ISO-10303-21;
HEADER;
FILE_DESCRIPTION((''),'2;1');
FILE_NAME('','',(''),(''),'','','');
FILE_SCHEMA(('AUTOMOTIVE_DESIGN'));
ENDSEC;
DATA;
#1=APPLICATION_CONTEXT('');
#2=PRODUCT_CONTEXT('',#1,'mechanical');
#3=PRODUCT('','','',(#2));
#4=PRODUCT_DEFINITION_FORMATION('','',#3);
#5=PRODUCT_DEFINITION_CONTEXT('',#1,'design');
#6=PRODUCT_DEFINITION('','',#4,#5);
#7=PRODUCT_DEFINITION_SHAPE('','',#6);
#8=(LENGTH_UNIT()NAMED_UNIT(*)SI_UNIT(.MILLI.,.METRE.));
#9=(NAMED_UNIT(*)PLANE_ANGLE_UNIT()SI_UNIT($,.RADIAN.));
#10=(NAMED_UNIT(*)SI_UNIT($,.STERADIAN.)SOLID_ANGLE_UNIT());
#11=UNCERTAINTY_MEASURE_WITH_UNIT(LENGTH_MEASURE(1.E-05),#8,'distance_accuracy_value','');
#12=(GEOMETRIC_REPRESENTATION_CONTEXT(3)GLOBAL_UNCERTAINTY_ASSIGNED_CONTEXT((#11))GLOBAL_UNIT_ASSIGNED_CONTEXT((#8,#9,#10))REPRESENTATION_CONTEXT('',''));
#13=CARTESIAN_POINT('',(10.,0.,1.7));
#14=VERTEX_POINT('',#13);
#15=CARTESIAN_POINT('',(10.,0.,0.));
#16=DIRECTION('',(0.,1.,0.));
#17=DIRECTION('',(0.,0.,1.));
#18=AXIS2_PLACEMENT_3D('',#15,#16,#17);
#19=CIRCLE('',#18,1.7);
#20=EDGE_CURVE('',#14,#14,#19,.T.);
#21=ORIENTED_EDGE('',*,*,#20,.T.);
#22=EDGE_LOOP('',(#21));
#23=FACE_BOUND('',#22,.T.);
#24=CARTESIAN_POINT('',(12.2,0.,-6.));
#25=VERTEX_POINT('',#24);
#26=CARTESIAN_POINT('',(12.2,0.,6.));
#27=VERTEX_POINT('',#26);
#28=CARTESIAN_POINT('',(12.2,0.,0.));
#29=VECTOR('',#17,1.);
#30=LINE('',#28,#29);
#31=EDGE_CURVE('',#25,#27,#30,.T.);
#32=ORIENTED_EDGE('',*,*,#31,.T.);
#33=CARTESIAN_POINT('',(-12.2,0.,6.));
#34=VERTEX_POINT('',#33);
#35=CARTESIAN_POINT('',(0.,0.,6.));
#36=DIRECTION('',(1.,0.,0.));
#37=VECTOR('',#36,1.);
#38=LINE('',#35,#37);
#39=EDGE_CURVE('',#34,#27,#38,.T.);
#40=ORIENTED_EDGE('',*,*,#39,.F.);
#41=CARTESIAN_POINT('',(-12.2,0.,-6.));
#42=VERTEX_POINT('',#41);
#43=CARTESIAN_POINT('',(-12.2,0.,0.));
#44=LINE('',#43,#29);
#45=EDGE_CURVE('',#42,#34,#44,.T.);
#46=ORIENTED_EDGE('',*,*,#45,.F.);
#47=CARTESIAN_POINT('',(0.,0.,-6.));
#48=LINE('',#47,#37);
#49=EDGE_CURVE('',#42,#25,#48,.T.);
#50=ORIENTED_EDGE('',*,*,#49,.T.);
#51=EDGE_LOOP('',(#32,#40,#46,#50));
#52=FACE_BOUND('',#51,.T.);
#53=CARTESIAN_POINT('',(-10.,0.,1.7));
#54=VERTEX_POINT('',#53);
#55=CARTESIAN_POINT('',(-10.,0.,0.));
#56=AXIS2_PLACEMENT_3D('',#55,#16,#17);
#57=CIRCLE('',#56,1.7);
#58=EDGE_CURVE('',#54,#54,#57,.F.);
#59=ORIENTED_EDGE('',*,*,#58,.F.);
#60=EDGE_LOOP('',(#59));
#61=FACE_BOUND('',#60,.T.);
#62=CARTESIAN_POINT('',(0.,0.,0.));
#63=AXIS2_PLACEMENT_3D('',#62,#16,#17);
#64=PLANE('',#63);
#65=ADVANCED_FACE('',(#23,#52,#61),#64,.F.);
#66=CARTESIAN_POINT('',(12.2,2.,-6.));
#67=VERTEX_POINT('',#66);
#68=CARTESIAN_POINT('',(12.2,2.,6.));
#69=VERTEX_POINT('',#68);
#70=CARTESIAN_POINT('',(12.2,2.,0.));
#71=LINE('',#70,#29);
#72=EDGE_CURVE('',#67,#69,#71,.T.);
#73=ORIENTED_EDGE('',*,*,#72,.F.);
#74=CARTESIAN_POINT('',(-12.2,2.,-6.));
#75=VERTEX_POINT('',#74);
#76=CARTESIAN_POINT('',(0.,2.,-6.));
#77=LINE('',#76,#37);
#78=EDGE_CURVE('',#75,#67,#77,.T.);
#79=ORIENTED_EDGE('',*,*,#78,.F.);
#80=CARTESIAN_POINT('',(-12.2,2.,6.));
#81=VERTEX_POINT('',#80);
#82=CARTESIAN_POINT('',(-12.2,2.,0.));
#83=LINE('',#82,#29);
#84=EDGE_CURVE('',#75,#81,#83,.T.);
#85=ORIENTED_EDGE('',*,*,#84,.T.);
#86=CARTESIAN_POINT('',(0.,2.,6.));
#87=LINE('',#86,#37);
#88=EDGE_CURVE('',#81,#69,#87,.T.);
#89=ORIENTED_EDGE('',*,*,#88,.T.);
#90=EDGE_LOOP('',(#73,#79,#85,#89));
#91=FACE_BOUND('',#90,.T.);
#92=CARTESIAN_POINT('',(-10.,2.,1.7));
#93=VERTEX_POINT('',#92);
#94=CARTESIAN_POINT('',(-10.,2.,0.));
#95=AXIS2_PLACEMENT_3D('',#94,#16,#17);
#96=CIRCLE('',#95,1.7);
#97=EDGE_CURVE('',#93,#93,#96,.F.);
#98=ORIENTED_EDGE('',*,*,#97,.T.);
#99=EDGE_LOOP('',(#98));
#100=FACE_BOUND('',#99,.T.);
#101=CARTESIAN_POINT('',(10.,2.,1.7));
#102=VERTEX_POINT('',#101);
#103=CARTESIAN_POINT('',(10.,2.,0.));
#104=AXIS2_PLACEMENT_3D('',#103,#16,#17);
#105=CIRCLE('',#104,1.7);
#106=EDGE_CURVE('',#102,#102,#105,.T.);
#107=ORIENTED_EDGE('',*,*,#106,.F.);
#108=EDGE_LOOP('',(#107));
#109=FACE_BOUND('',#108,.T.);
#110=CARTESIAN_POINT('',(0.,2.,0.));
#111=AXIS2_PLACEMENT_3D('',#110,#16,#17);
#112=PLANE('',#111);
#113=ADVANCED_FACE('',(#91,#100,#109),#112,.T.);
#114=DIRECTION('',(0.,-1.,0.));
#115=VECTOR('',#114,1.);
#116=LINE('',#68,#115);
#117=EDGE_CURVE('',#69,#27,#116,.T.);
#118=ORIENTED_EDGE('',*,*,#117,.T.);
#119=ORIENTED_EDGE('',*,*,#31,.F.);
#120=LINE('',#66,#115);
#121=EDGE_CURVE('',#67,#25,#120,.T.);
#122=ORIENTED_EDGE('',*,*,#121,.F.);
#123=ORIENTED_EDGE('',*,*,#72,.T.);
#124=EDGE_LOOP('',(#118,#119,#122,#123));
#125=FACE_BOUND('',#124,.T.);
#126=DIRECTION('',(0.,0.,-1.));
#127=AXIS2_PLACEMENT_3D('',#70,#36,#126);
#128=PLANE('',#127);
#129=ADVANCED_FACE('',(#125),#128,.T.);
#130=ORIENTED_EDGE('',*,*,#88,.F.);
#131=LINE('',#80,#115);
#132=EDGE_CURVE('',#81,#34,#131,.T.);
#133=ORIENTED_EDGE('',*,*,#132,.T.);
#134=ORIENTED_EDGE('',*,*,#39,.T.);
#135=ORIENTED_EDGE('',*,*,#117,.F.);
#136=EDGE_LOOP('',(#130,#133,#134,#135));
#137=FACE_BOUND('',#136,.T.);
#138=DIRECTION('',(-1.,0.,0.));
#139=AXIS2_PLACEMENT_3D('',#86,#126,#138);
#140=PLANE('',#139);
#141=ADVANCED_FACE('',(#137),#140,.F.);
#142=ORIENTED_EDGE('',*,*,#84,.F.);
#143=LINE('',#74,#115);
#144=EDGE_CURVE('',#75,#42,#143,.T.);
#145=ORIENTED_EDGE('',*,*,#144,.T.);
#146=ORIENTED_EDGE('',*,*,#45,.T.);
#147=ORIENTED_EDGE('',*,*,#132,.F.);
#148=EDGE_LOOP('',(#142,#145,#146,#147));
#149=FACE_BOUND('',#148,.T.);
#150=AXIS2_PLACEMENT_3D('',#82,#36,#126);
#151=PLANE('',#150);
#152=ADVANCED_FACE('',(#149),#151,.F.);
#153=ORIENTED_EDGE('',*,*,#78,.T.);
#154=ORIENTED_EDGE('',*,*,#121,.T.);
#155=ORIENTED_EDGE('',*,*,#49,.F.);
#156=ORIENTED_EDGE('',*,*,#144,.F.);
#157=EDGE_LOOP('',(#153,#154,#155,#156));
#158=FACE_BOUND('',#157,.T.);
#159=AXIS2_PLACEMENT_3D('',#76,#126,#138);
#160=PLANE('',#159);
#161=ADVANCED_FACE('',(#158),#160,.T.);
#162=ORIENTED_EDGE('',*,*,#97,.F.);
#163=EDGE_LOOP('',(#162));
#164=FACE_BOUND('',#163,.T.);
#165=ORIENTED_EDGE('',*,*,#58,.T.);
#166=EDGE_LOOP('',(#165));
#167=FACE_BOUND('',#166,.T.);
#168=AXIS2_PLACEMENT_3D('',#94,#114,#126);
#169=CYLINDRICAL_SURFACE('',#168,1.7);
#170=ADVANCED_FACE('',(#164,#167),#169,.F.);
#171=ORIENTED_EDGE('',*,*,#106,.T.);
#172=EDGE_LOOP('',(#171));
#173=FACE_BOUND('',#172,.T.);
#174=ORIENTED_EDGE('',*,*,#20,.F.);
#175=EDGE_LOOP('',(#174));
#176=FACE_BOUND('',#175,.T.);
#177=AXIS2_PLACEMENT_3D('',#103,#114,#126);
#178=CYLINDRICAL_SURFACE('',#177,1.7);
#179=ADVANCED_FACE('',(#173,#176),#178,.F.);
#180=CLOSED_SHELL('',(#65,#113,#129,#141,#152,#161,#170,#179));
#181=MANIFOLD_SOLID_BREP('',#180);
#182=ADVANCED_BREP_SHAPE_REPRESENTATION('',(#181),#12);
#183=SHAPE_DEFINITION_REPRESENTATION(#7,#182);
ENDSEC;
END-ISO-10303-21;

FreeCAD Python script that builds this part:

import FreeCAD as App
import Part
import Sketcher


def add_polygon(sketch, points):
    """Adds a closed chain of lines whose ends are joined by coincident constraints."""
    first, n = sketch.GeometryCount, len(points)
    for a, b in zip(points, points[1:] + points[:1]):
        sketch.addGeometry(Part.LineSegment(App.Vector(*a, 0), App.Vector(*b, 0)), False)
    for i in range(n):
        sketch.addConstraint(Sketcher.Constraint("Coincident", first + i, 2, first + (i + 1) % n, 1))

doc = App.newDocument("Part")
body = doc.addObject("PartDesign::Body", "Body")

# Sketch on XZ plane
sketch1 = body.newObject("Sketcher::SketchObject", "Sketch")
sketch1.AttachmentSupport = (doc.getObject("XZ_Plane"), [""])
sketch1.MapMode = "FlatFace"
add_polygon(sketch1, [(12.2, -6), (-12.2, -6), (-12.2, 6), (12.2, 6)])  # lines 0-3
sketch1.addGeometry(Part.Circle(App.Vector(10, 0, 0), App.Vector(0, 0, 1), 1.7), False)  # 4
sketch1.addGeometry(Part.Circle(App.Vector(-10, 0, 0), App.Vector(0, 0, 1), 1.7), False)  # 5
sketch1.addConstraint([
    Sketcher.Constraint("Horizontal", 0),
    Sketcher.Constraint("Vertical", 1),
    Sketcher.Constraint("Horizontal", 2),
    Sketcher.Constraint("Vertical", 3),
    Sketcher.Constraint("Equal", 4, 5),
    Sketcher.Constraint("Symmetric", 4, 3, 5, 3, -1, 1),
    Sketcher.Constraint("Symmetric", 0, 2, 2, 2, -1, 1),
    Sketcher.Constraint("PointOnObject", 4, 3, -1),
    Sketcher.Constraint("Diameter", 4, 3.4),
    Sketcher.Constraint("DistanceY", 1, 1, 1, 2, 12.0),
    Sketcher.Constraint("DistanceX", 0, 2, 0, 1, 24.4),
    Sketcher.Constraint("DistanceX", -1, 1, 4, 3, 10.0),
])
pad1 = body.newObject("PartDesign::Pad", "Pad")
pad1.Profile = sketch1
pad1.Length = 2
pad1.Reversed = True

doc.recompute()
